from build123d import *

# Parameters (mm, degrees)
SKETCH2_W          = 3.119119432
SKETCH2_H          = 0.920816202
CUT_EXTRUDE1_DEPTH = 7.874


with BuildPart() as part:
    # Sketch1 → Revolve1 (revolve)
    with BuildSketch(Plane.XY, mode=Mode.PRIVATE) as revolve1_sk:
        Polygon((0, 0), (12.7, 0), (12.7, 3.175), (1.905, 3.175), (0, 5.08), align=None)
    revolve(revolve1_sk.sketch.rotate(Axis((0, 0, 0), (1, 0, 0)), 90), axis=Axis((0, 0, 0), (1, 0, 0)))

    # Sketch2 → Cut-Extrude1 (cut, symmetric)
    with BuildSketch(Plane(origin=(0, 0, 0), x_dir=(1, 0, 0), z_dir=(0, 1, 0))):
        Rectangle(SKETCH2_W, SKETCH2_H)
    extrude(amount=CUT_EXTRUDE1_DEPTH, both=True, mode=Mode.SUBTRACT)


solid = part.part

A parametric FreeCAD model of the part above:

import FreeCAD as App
import Part
import Sketcher

V = App.Vector
Q = App.Units.Quantity

doc = App.newDocument("Part")
body = doc.addObject("PartDesign::Body", "Body")

sketch1 = doc.addObject("Sketcher::SketchObject", "Sketch")
body.addObject(sketch1)
sketch1.AttachmentSupport = (doc.XY_Plane, [""])
sketch1.MapMode = "FlatFace"
sketch1.addGeometry(Part.LineSegment(V(0, 0, 0), V(12.7, 0, 0)), False)
sketch1.addGeometry(Part.LineSegment(V(12.7, 0, 0), V(12.7, 3.2, 0)), False)
sketch1.addGeometry(Part.LineSegment(V(12.7, 3.2, 0), V(1.9, 3.2, 0)), False)
sketch1.addGeometry(Part.LineSegment(V(1.9, 3.2, 0), V(0, 5.1, 0)), False)
sketch1.addGeometry(Part.LineSegment(V(0, 5.1, 0), V(0, 0, 0)), False)
sketch1.addConstraint(Sketcher.Constraint("Coincident", 0, 2, 1, 1))
sketch1.addConstraint(Sketcher.Constraint("Coincident", 1, 2, 2, 1))
sketch1.addConstraint(Sketcher.Constraint("Coincident", 2, 2, 3, 1))
sketch1.addConstraint(Sketcher.Constraint("Coincident", 3, 2, 4, 1))
sketch1.addConstraint(Sketcher.Constraint("Coincident", 4, 2, 0, 1))
sketch1.addConstraint(Sketcher.Constraint("Horizontal", 0))
sketch1.addConstraint(Sketcher.Constraint("Vertical", 1))
sketch1.addConstraint(Sketcher.Constraint("Horizontal", 2))
sketch1.addConstraint(Sketcher.Constraint("Vertical", 4))
sketch1.addConstraint(Sketcher.Constraint("Coincident", 4, 2, -1, 1))
sketch1.addConstraint(Sketcher.Constraint("DistanceX", 0, 1, 0, 2, Q("0.5 in")))
sketch1.addConstraint(Sketcher.Constraint("DistanceY", 4, 2, 4, 1, Q("0.2 in")))
sketch1.addConstraint(Sketcher.Constraint("Angle", 3, Q("135 deg")))
sketch1.addConstraint(Sketcher.Constraint("DistanceX", 2, 2, 2, 1, Q("0.425 in")))
revolution = doc.addObject("PartDesign::Revolution", "Revolution")
body.addObject(revolution)
revolution.Profile = sketch1
revolution.ReferenceAxis = (sketch1, ["H_Axis"])
revolution.Angle = 360

sketch2 = doc.addObject("Sketcher::SketchObject", "Sketch001")
body.addObject(sketch2)
sketch2.AttachmentSupport = (doc.XZ_Plane, [""])
sketch2.MapMode = "FlatFace"
sketch2.addGeometry(Part.LineSegment(V(-1.6, -0.5, 0), V(-1.6, 0.5, 0)), False)
sketch2.addGeometry(Part.LineSegment(V(-1.6, 0.5, 0), V(1.6, 0.5, 0)), False)
sketch2.addGeometry(Part.LineSegment(V(1.6, 0.5, 0), V(1.6, -0.5, 0)), False)
sketch2.addGeometry(Part.LineSegment(V(1.6, -0.5, 0), V(-1.6, -0.5, 0)), False)
sketch2.addConstraint(Sketcher.Constraint("Coincident", 0, 2, 1, 1))
sketch2.addConstraint(Sketcher.Constraint("Coincident", 1, 2, 2, 1))
sketch2.addConstraint(Sketcher.Constraint("Coincident", 2, 2, 3, 1))
sketch2.addConstraint(Sketcher.Constraint("Coincident", 3, 2, 0, 1))
sketch2.addConstraint(Sketcher.Constraint("Vertical", 0))
sketch2.addConstraint(Sketcher.Constraint("Horizontal", 1))
sketch2.addConstraint(Sketcher.Constraint("Vertical", 2))
sketch2.addConstraint(Sketcher.Constraint("Horizontal", 3))
sketch2.addConstraint(Sketcher.Constraint("Symmetric", 0, 2, 2, 2, -1, 1))
sketch2.addConstraint(Sketcher.Constraint("DistanceX", 1, 1, 1, 2, Q("0.1228 in")))
sketch2.addConstraint(Sketcher.Constraint("DistanceY", 0, 1, 0, 2, 0.920816))
pocket1 = doc.addObject("PartDesign::Pocket", "Pocket")
body.addObject(pocket1)
pocket1.Profile = sketch2
pocket1.Length = Q("0.62 in")
pocket1.Midplane = True

doc.recompute()
